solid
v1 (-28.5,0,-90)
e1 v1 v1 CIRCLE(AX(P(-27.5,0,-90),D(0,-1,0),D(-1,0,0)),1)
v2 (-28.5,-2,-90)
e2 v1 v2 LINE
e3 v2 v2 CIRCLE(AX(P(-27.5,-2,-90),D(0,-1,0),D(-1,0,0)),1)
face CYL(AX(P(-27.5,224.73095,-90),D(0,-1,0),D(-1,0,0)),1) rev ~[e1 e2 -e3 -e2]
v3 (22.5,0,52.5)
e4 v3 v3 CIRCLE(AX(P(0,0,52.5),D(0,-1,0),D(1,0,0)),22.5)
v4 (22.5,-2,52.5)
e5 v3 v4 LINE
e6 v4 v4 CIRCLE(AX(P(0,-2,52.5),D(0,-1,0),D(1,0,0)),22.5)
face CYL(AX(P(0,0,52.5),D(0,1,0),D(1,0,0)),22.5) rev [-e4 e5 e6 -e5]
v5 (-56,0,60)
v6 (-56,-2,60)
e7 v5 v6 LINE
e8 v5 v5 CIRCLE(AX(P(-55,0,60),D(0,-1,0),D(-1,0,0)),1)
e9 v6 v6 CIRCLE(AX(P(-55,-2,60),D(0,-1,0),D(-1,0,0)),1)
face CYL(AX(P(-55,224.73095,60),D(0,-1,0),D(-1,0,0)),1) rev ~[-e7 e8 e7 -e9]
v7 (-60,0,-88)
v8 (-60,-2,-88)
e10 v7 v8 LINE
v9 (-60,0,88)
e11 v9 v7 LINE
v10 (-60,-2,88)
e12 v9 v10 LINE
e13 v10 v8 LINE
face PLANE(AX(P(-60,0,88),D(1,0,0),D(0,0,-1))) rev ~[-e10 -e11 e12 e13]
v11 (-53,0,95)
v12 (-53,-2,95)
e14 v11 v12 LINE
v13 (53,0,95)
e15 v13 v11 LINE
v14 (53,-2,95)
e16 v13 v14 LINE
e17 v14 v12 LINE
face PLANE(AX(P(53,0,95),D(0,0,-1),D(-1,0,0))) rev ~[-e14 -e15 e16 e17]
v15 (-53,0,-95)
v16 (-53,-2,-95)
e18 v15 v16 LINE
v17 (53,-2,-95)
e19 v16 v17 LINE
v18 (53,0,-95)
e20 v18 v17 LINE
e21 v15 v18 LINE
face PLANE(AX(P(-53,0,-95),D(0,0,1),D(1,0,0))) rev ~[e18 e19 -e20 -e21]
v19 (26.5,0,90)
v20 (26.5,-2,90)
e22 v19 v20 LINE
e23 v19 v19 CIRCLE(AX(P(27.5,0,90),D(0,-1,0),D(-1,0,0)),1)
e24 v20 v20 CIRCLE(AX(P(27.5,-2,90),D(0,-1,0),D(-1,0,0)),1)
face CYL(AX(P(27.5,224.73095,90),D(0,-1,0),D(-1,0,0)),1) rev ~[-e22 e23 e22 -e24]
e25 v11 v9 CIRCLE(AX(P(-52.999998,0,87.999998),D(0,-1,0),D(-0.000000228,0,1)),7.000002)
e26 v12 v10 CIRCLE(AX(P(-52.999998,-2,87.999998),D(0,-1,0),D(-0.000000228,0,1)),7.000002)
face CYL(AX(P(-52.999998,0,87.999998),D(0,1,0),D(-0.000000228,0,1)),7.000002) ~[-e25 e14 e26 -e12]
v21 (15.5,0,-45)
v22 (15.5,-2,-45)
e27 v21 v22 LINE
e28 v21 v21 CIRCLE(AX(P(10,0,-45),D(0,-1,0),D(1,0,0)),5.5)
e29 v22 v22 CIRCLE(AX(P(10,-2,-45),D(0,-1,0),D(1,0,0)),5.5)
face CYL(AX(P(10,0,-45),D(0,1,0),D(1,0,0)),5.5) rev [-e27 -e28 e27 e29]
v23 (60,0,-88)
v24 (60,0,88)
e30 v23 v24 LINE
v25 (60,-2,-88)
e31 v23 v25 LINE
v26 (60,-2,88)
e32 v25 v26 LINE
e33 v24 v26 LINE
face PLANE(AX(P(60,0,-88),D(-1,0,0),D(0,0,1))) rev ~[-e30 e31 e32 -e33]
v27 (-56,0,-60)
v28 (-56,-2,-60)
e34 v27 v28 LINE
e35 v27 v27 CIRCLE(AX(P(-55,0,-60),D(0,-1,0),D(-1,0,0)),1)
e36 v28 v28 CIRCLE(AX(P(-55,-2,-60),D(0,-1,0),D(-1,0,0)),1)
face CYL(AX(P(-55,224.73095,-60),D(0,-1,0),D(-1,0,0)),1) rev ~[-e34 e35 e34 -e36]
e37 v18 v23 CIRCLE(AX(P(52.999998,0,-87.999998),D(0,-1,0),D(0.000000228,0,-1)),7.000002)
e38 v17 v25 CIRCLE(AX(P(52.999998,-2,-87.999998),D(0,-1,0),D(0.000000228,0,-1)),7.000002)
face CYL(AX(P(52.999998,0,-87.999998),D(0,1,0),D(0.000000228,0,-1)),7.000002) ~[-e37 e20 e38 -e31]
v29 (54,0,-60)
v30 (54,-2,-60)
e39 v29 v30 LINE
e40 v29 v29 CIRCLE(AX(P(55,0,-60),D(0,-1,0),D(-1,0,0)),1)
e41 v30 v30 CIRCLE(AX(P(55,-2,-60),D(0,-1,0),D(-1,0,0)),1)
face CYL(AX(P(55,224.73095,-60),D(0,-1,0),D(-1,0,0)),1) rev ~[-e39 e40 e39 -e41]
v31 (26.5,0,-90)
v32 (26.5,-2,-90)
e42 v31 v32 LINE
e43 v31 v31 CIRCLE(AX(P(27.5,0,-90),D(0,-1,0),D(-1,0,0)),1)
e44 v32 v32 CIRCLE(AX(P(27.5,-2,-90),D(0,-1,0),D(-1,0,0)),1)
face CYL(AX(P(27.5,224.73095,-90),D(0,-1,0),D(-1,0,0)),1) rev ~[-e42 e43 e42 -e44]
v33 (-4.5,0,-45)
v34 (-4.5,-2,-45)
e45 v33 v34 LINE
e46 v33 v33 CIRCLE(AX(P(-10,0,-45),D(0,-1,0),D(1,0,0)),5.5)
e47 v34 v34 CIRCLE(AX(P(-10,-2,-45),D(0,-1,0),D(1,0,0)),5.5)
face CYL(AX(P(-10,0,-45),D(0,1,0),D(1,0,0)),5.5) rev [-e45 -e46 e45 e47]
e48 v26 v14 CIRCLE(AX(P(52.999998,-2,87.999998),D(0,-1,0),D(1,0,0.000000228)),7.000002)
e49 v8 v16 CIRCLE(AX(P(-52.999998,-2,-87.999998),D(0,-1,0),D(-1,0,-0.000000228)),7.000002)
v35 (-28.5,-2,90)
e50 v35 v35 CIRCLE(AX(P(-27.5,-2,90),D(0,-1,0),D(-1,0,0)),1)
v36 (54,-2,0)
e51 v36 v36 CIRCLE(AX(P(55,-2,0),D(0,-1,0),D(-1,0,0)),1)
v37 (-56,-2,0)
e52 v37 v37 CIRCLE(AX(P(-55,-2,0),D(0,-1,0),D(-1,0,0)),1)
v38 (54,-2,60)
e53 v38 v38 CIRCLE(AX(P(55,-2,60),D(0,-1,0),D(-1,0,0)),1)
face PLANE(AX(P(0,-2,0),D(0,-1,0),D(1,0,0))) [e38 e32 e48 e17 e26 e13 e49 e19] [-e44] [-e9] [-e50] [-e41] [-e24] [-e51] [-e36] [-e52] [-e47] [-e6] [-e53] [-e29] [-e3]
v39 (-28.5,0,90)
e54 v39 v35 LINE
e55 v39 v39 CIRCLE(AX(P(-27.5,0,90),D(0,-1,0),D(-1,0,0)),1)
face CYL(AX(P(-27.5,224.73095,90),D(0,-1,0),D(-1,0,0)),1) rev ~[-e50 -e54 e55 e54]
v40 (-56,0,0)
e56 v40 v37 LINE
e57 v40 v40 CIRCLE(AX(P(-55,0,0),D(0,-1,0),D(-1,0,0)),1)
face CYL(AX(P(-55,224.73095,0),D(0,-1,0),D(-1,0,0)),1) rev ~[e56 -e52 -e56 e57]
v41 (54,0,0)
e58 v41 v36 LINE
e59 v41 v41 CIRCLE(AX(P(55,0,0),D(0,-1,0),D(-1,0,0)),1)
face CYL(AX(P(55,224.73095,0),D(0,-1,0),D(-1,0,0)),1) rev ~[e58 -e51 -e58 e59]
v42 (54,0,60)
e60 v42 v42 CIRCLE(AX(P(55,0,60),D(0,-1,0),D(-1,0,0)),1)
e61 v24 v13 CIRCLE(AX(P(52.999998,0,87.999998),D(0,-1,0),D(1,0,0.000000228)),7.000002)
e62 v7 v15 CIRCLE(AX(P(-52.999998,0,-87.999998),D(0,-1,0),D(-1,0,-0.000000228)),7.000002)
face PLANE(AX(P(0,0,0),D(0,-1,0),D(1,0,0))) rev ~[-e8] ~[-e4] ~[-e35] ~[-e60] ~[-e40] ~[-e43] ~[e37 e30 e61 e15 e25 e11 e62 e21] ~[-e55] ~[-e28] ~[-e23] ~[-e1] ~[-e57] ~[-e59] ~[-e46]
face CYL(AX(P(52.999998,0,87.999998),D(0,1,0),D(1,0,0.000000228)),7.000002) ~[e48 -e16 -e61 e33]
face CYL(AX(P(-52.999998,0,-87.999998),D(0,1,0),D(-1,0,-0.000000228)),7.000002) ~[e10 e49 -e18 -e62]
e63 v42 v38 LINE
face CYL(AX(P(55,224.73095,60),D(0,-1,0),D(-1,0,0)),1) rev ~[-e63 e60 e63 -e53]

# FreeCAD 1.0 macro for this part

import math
import FreeCAD as App
import Part
import Sketcher
from FreeCAD import Vector

doc = App.newDocument("Part")
body = doc.addObject("PartDesign::Body", "Body")

# Sketch on XZ plane
sketch1 = doc.addObject("Sketcher::SketchObject", "Sketch")
body.addObject(sketch1)
sketch1.AttachmentSupport = (doc.XZ_Plane, [""])
sketch1.MapMode = "FlatFace"
sketch1.addGeometry([
    Part.ArcOfCircle(Part.Circle(Vector(53, 88, 0), Vector(0, 0, 1), 7), math.radians(0), math.radians(90)),  # 0
    Part.LineSegment(Vector(53, 95, 0), Vector(-53, 95, 0)),  # 1
    Part.ArcOfCircle(Part.Circle(Vector(-53, 88, 0), Vector(0, 0, 1), 7), math.radians(90), math.radians(180)),  # 2
    Part.LineSegment(Vector(-60, 88, 0), Vector(-60, -88, 0)),  # 3
    Part.ArcOfCircle(Part.Circle(Vector(-53, -88, 0), Vector(0, 0, 1), 7), math.radians(-180), math.radians(-90)),  # 4
    Part.LineSegment(Vector(-53, -95, 0), Vector(53, -95, 0)),  # 5
    Part.ArcOfCircle(Part.Circle(Vector(53, -88, 0), Vector(0, 0, 1), 7), math.radians(-90), math.radians(0)),  # 6
    Part.LineSegment(Vector(60, -88, 0), Vector(60, 88, 0)),  # 7
    Part.Circle(Vector(-10, -45, 0), Vector(0, 0, 1), 6),  # 8
    Part.Circle(Vector(10, -45, 0), Vector(0, 0, 1), 6),  # 9
    Part.Circle(Vector(0, 52, 0), Vector(0, 0, 1), 22),  # 10
], False)
sketch1.addConstraint([
    Sketcher.Constraint("Tangent", 0, 2, 1, 1),
    Sketcher.Constraint("Tangent", 1, 2, 2, 1),
    Sketcher.Constraint("Tangent", 2, 2, 3, 1),
    Sketcher.Constraint("Tangent", 3, 2, 4, 1),
    Sketcher.Constraint("Tangent", 4, 2, 5, 1),
    Sketcher.Constraint("Tangent", 5, 2, 6, 1),
    Sketcher.Constraint("Tangent", 6, 2, 7, 1),
    Sketcher.Constraint("Tangent", 7, 2, 0, 1),
    Sketcher.Constraint("Horizontal", 1),
    Sketcher.Constraint("Vertical", 3),
    Sketcher.Constraint("Horizontal", 5),
    Sketcher.Constraint("Vertical", 7),
    Sketcher.Constraint("Equal", 0, 2),
    Sketcher.Constraint("Equal", 2, 4),
    Sketcher.Constraint("Equal", 4, 6),
    Sketcher.Constraint("Equal", 8, 9),
    Sketcher.Constraint("Symmetric", 0, 3, 4, 3, -1, 1),
    Sketcher.Constraint("Symmetric", 8, 3, 9, 3, -2),
    Sketcher.Constraint("PointOnObject", 10, 3, -2),
    Sketcher.Constraint("Diameter", 8, 11.0),
    Sketcher.Constraint("Diameter", 10, 45.0),
    Sketcher.Constraint("Radius", 0, 7.000002),
    Sketcher.Constraint("DistanceX", 1, 2, 1, 1, 106.0),
    Sketcher.Constraint("DistanceY", 3, 2, 3, 1, 176.0),
    Sketcher.Constraint("DistanceX", 8, 3, -1, 1, 10.0),
    Sketcher.Constraint("DistanceY", 8, 3, -1, 1, 45.0),
    Sketcher.Constraint("DistanceY", -1, 1, 10, 3, 52.5),
])
pad1 = doc.addObject("PartDesign::Pad", "Pad")
body.addObject(pad1)
pad1.Profile = sketch1
pad1.Length = 2

# Sketch on XZ plane
sketch2 = doc.addObject("Sketcher::SketchObject", "Sketch001")
body.addObject(sketch2)
sketch2.AttachmentSupport = (doc.XZ_Plane, [""])
sketch2.MapMode = "FlatFace"
sketch2.addGeometry([
    Part.Circle(Vector(-27.5, -90, 0), Vector(0, 0, 1), 1),  # 0
    Part.Circle(Vector(-55, -60, 0), Vector(0, 0, 1), 1),  # 1
    Part.Circle(Vector(-55, 0, 0), Vector(0, 0, 1), 1),  # 2
    Part.Circle(Vector(-55, 60, 0), Vector(0, 0, 1), 1),  # 3
    Part.Circle(Vector(-27.5, 90, 0), Vector(0, 0, 1), 1),  # 4
    Part.Circle(Vector(27.5, 90, 0), Vector(0, 0, 1), 1),  # 5
    Part.Circle(Vector(55, 60, 0), Vector(0, 0, 1), 1),  # 6
    Part.Circle(Vector(55, 0, 0), Vector(0, 0, 1), 1),  # 7
    Part.Circle(Vector(55, -60, 0), Vector(0, 0, 1), 1),  # 8
    Part.Circle(Vector(27.5, -90, 0), Vector(0, 0, 1), 1),  # 9
], False)
sketch2.addConstraint([
    Sketcher.Constraint("Equal", 0, 1),
    Sketcher.Constraint("Equal", 1, 2),
    Sketcher.Constraint("Equal", 2, 3),
    Sketcher.Constraint("Equal", 3, 4),
    Sketcher.Constraint("Equal", 4, 5),
    Sketcher.Constraint("Equal", 5, 6),
    Sketcher.Constraint("Equal", 6, 7),
    Sketcher.Constraint("Equal", 7, 8),
    Sketcher.Constraint("Equal", 8, 9),
    Sketcher.Constraint("Symmetric", 0, 3, 5, 3, -1, 1),
    Sketcher.Constraint("Symmetric", 1, 3, 6, 3, -1, 1),
    Sketcher.Constraint("Symmetric", 2, 3, 7, 3, -1, 1),
    Sketcher.Constraint("Symmetric", 3, 3, 8, 3, -1, 1),
    Sketcher.Constraint("Symmetric", 4, 3, 9, 3, -1, 1),
    Sketcher.Constraint("Symmetric", 4, 3, 5, 3, -2),
    Sketcher.Constraint("Symmetric", 3, 3, 6, 3, -2),
    Sketcher.Constraint("PointOnObject", 2, 3, -1),
    Sketcher.Constraint("Vertical", 1, 3, 2, 3),
    Sketcher.Constraint("Diameter", 0, 2.0),
    Sketcher.Constraint("DistanceY", 0, 3, -1, 1, 90.0),
    Sketcher.Constraint("DistanceX", 1, 3, -1, 1, 55.0),
    Sketcher.Constraint("DistanceY", 1, 3, -1, 1, 60.0),
    Sketcher.Constraint("DistanceX", 4, 3, 5, 3, 55.0),
])
doc.recompute()
hole = doc.addObject("PartDesign::Hole", "Hole")
body.addObject(hole)
hole.Profile = sketch2
hole.ThreadType = "None"
hole.Diameter = 2
hole.DepthType = "ThroughAll"
hole.Reversed = True

doc.recompute()
